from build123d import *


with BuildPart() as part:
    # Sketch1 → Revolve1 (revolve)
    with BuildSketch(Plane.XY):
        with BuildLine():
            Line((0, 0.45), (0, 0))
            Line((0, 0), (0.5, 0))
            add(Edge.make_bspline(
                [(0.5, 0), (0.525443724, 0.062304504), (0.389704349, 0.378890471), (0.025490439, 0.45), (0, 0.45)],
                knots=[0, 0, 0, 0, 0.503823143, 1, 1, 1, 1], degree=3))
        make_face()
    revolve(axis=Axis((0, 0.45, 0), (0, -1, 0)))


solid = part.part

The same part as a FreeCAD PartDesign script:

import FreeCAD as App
import Part
import Sketcher
from FreeCAD import Vector

doc = App.newDocument("Part")
params = doc.addObject("Spreadsheet::Sheet", "Params")
for row, (alias, value) in enumerate([
    ("revolution_angle", "360 deg"),
], start=1):
    params.set(f"A{row}", alias)
    params.set(f"B{row}", "=" + value)
    params.setAlias(f"B{row}", alias)

body = doc.addObject("PartDesign::Body", "Body")

# Sketch on XY plane
sketch1 = body.newObject("Sketcher::SketchObject", "Sketch")
sketch1.AttachmentSupport = (doc.getObject("XY_Plane"), [""])
sketch1.MapMode = "FlatFace"
sketch1.addGeometry([
    Part.LineSegment(Vector(0, 0.45, 0), Vector(0, 0, 0)),
    Part.LineSegment(Vector(0, 0, 0), Vector(0.5, 0, 0)),
    Part.BSplineCurve([Vector(0.5, 0, 0), Vector(0.525444, 0.062305, 0), Vector(0.389704, 0.37889, 0), Vector(0.02549, 0.45, 0), Vector(0, 0.45, 0)], [4, 1, 4], [0, 0.503823143, 1], False, 3, [1, 1, 1, 1, 1], False),
], False)
sketch1.addConstraint([
    Sketcher.Constraint("Block", 2),
    Sketcher.Constraint("Coincident", 0, 2, 1, 1),
    Sketcher.Constraint("Coincident", 1, 2, 2, 1),
    Sketcher.Constraint("Coincident", 2, 2, 0, 1),
    Sketcher.Constraint("Vertical", 0),
    Sketcher.Constraint("Horizontal", 1),
])
revolution = body.newObject("PartDesign::Revolution", "Revolution")
revolution.Profile = sketch1
revolution.ReferenceAxis = (sketch1, ["V_Axis"])
revolution.setExpression("Angle", "Params.revolution_angle")

doc.recompute()
